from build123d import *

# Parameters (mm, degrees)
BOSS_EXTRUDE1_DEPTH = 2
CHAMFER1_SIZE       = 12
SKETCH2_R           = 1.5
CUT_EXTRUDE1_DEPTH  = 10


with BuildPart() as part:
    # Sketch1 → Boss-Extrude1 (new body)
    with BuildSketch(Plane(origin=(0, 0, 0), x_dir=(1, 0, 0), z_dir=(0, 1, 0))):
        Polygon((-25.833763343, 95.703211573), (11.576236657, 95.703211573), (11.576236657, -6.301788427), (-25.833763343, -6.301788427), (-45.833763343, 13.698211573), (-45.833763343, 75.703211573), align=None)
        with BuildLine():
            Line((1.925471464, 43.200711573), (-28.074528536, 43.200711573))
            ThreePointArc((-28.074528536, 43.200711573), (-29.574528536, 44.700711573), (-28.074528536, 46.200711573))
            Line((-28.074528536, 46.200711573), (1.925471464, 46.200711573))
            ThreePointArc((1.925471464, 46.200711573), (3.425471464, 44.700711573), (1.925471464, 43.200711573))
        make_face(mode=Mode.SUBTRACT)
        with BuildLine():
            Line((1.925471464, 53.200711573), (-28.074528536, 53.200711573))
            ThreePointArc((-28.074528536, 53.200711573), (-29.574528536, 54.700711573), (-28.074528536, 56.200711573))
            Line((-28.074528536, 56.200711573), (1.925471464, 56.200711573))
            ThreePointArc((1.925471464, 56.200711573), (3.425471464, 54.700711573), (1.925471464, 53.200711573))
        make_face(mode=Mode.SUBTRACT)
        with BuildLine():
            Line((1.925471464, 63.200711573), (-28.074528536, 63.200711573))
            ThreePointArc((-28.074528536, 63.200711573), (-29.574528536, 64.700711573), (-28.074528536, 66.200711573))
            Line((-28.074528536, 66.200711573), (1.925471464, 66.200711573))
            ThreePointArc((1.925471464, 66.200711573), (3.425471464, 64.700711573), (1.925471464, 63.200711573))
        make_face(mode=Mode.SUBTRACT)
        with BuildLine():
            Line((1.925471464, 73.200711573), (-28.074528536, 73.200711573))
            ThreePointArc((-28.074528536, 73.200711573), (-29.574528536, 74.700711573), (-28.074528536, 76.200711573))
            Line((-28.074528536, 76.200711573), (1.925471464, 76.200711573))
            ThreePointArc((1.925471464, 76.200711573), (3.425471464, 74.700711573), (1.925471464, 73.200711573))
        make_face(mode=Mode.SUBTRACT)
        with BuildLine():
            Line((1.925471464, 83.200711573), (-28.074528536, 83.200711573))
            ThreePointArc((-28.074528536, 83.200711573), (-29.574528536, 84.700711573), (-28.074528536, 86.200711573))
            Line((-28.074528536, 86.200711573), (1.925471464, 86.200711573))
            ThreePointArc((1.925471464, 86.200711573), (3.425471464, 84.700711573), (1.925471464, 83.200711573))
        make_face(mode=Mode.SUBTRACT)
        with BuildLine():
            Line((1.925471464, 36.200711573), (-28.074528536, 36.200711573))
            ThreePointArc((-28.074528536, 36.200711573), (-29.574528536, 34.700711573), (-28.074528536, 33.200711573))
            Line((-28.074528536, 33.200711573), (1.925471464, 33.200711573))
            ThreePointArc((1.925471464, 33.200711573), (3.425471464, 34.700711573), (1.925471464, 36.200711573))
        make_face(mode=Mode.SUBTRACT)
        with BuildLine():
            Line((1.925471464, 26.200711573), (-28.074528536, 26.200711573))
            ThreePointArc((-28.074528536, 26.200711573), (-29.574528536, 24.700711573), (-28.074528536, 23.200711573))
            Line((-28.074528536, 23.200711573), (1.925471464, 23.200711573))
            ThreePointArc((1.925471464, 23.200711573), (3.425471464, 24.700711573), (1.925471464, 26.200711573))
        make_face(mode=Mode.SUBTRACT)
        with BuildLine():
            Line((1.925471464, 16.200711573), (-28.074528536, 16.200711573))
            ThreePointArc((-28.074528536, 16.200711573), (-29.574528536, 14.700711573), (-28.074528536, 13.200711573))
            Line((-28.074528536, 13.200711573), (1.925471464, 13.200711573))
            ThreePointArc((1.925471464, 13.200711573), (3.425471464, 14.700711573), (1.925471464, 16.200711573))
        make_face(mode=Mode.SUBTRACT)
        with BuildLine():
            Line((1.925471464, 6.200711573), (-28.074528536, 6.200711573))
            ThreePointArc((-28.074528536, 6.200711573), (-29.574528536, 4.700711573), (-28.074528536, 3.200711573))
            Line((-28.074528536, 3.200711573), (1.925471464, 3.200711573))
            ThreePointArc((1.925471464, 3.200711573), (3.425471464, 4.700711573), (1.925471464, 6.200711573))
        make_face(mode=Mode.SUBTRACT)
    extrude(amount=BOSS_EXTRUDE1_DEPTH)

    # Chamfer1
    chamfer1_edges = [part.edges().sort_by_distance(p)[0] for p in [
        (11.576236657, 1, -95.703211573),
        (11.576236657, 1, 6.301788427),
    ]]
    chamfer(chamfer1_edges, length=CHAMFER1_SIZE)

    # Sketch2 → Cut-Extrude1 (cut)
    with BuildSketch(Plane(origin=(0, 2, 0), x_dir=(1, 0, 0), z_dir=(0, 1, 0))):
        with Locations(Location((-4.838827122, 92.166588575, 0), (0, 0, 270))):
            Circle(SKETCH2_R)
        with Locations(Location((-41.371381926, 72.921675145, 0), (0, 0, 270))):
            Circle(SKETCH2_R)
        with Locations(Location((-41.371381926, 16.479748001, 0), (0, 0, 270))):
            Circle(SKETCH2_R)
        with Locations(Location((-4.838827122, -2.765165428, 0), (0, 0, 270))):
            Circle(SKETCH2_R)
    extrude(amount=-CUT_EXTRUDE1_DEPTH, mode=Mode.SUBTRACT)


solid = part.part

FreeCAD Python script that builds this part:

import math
import FreeCAD as App
import Part
import Sketcher

V = App.Vector


def edges_at(feature, points):
    """Names of the edges that pass closest to the given points."""
    edges = feature.Shape.Edges
    near = lambda p: min(range(len(edges)), key=lambda i: edges[i].distToShape(Part.Vertex(*p))[0])
    return sorted({f"Edge{near(p) + 1}" for p in points})

doc = App.newDocument("Part")
body = doc.addObject("PartDesign::Body", "Body")

# Sketch on XZ plane
sketch1 = doc.addObject("Sketcher::SketchObject", "Sketch")
body.addObject(sketch1)
sketch1.AttachmentSupport = (doc.XZ_Plane, [""])
sketch1.MapMode = "FlatFace"
sketch1.addGeometry([
    Part.LineSegment(V(11.6, -95.7, 0), V(-25.8, -95.7, 0)),  # 0
    Part.LineSegment(V(-25.8, -95.7, 0), V(-45.8, -75.7, 0)),  # 1
    Part.LineSegment(V(-45.8, -75.7, 0), V(-45.8, -13.7, 0)),  # 2
    Part.LineSegment(V(-45.8, -13.7, 0), V(-25.8, 6.3, 0)),  # 3
    Part.LineSegment(V(-25.8, 6.3, 0), V(11.6, 6.3, 0)),  # 4
    Part.LineSegment(V(11.6, 6.3, 0), V(11.6, -95.7, 0)),  # 5
    Part.ArcOfCircle(Part.Circle(V(1.9, -4.7, 0), V(0, 0, 1), 1.5), math.radians(-90), math.radians(90)),  # 6
    Part.LineSegment(V(1.9, -3.2, 0), V(-28.1, -3.2, 0)),  # 7
    Part.ArcOfCircle(Part.Circle(V(-28.1, -4.7, 0), V(0, 0, 1), 1.5), math.radians(90), math.radians(270)),  # 8
    Part.LineSegment(V(-28.1, -6.2, 0), V(1.9, -6.2, 0)),  # 9
    Part.ArcOfCircle(Part.Circle(V(1.9, -14.7, 0), V(0, 0, 1), 1.5), math.radians(-90), math.radians(90)),  # 10
    Part.LineSegment(V(1.9, -13.2, 0), V(-28.1, -13.2, 0)),  # 11
    Part.ArcOfCircle(Part.Circle(V(-28.1, -14.7, 0), V(0, 0, 1), 1.5), math.radians(90), math.radians(270)),  # 12
    Part.LineSegment(V(-28.1, -16.2, 0), V(1.9, -16.2, 0)),  # 13
    Part.ArcOfCircle(Part.Circle(V(1.9, -24.7, 0), V(0, 0, 1), 1.5), math.radians(-90), math.radians(90)),  # 14
    Part.LineSegment(V(1.9, -23.2, 0), V(-28.1, -23.2, 0)),  # 15
    Part.ArcOfCircle(Part.Circle(V(-28.1, -24.7, 0), V(0, 0, 1), 1.5), math.radians(90), math.radians(270)),  # 16
    Part.LineSegment(V(-28.1, -26.2, 0), V(1.9, -26.2, 0)),  # 17
    Part.ArcOfCircle(Part.Circle(V(1.9, -34.7, 0), V(0, 0, 1), 1.5), math.radians(-90), math.radians(90)),  # 18
    Part.LineSegment(V(1.9, -33.2, 0), V(-28.1, -33.2, 0)),  # 19
    Part.ArcOfCircle(Part.Circle(V(-28.1, -34.7, 0), V(0, 0, 1), 1.5), math.radians(90), math.radians(270)),  # 20
    Part.LineSegment(V(-28.1, -36.2, 0), V(1.9, -36.2, 0)),  # 21
    Part.LineSegment(V(1.9, -63.2, 0), V(-28.1, -63.2, 0)),  # 22
    Part.ArcOfCircle(Part.Circle(V(-28.1, -64.7, 0), V(0, 0, 1), 1.5), math.radians(90), math.radians(270)),  # 23
    Part.LineSegment(V(-28.1, -66.2, 0), V(1.9, -66.2, 0)),  # 24
    Part.ArcOfCircle(Part.Circle(V(1.9, -64.7, 0), V(0, 0, 1), 1.5), math.radians(-90), math.radians(90)),  # 25
    Part.LineSegment(V(1.9, -43.2, 0), V(-28.1, -43.2, 0)),  # 26
    Part.ArcOfCircle(Part.Circle(V(-28.1, -44.7, 0), V(0, 0, 1), 1.5), math.radians(90), math.radians(270)),  # 27
    Part.LineSegment(V(-28.1, -46.2, 0), V(1.9, -46.2, 0)),  # 28
    Part.ArcOfCircle(Part.Circle(V(1.9, -44.7, 0), V(0, 0, 1), 1.5), math.radians(-90), math.radians(90)),  # 29
    Part.LineSegment(V(1.9, -53.2, 0), V(-28.1, -53.2, 0)),  # 30
    Part.ArcOfCircle(Part.Circle(V(-28.1, -54.7, 0), V(0, 0, 1), 1.5), math.radians(90), math.radians(270)),  # 31
    Part.LineSegment(V(-28.1, -56.2, 0), V(1.9, -56.2, 0)),  # 32
    Part.ArcOfCircle(Part.Circle(V(1.9, -54.7, 0), V(0, 0, 1), 1.5), math.radians(-90), math.radians(90)),  # 33
    Part.LineSegment(V(1.9, -73.2, 0), V(-28.1, -73.2, 0)),  # 34
    Part.ArcOfCircle(Part.Circle(V(-28.1, -74.7, 0), V(0, 0, 1), 1.5), math.radians(90), math.radians(270)),  # 35
    Part.LineSegment(V(-28.1, -76.2, 0), V(1.9, -76.2, 0)),  # 36
    Part.ArcOfCircle(Part.Circle(V(1.9, -74.7, 0), V(0, 0, 1), 1.5), math.radians(-90), math.radians(90)),  # 37
    Part.LineSegment(V(1.9, -83.2, 0), V(-28.1, -83.2, 0)),  # 38
    Part.ArcOfCircle(Part.Circle(V(-28.1, -84.7, 0), V(0, 0, 1), 1.5), math.radians(90), math.radians(270)),  # 39
    Part.LineSegment(V(-28.1, -86.2, 0), V(1.9, -86.2, 0)),  # 40
    Part.ArcOfCircle(Part.Circle(V(1.9, -84.7, 0), V(0, 0, 1), 1.5), math.radians(-90), math.radians(90)),  # 41
], False)
sketch1.addConstraint([
    Sketcher.Constraint("Coincident", 0, 2, 1, 1),
    Sketcher.Constraint("Coincident", 1, 2, 2, 1),
    Sketcher.Constraint("Coincident", 2, 2, 3, 1),
    Sketcher.Constraint("Coincident", 3, 2, 4, 1),
    Sketcher.Constraint("Coincident", 4, 2, 5, 1),
    Sketcher.Constraint("Coincident", 5, 2, 0, 1),
    Sketcher.Constraint("Tangent", 6, 2, 7, 1),
    Sketcher.Constraint("Tangent", 7, 2, 8, 1),
    Sketcher.Constraint("Tangent", 8, 2, 9, 1),
    Sketcher.Constraint("Tangent", 9, 2, 6, 1),
    Sketcher.Constraint("Tangent", 10, 2, 11, 1),
    Sketcher.Constraint("Tangent", 11, 2, 12, 1),
    Sketcher.Constraint("Tangent", 12, 2, 13, 1),
    Sketcher.Constraint("Tangent", 13, 2, 10, 1),
    Sketcher.Constraint("Tangent", 14, 2, 15, 1),
    Sketcher.Constraint("Tangent", 15, 2, 16, 1),
    Sketcher.Constraint("Tangent", 16, 2, 17, 1),
    Sketcher.Constraint("Tangent", 17, 2, 14, 1),
    Sketcher.Constraint("Tangent", 18, 2, 19, 1),
    Sketcher.Constraint("Tangent", 19, 2, 20, 1),
    Sketcher.Constraint("Tangent", 20, 2, 21, 1),
    Sketcher.Constraint("Tangent", 21, 2, 18, 1),
    Sketcher.Constraint("Tangent", 22, 2, 23, 1),
    Sketcher.Constraint("Tangent", 23, 2, 24, 1),
    Sketcher.Constraint("Tangent", 24, 2, 25, 1),
    Sketcher.Constraint("Tangent", 25, 2, 22, 1),
    Sketcher.Constraint("Tangent", 26, 2, 27, 1),
    Sketcher.Constraint("Tangent", 27, 2, 28, 1),
    Sketcher.Constraint("Tangent", 28, 2, 29, 1),
    Sketcher.Constraint("Tangent", 29, 2, 26, 1),
    Sketcher.Constraint("Tangent", 30, 2, 31, 1),
    Sketcher.Constraint("Tangent", 31, 2, 32, 1),
    Sketcher.Constraint("Tangent", 32, 2, 33, 1),
    Sketcher.Constraint("Tangent", 33, 2, 30, 1),
    Sketcher.Constraint("Tangent", 34, 2, 35, 1),
    Sketcher.Constraint("Tangent", 35, 2, 36, 1),
    Sketcher.Constraint("Tangent", 36, 2, 37, 1),
    Sketcher.Constraint("Tangent", 37, 2, 34, 1),
    Sketcher.Constraint("Tangent", 38, 2, 39, 1),
    Sketcher.Constraint("Tangent", 39, 2, 40, 1),
    Sketcher.Constraint("Tangent", 40, 2, 41, 1),
    Sketcher.Constraint("Tangent", 41, 2, 38, 1),
    Sketcher.Constraint("Horizontal", 0),
    Sketcher.Constraint("Vertical", 2),
    Sketcher.Constraint("Horizontal", 4),
    Sketcher.Constraint("Vertical", 5),
    Sketcher.Constraint("Horizontal", 7),
    Sketcher.Constraint("Horizontal", 9),
    Sketcher.Constraint("Horizontal", 11),
    Sketcher.Constraint("Horizontal", 13),
    Sketcher.Constraint("Horizontal", 15),
    Sketcher.Constraint("Horizontal", 17),
    Sketcher.Constraint("Horizontal", 19),
    Sketcher.Constraint("Horizontal", 21),
    Sketcher.Constraint("Horizontal", 22),
    Sketcher.Constraint("Horizontal", 24),
    Sketcher.Constraint("Horizontal", 26),
    Sketcher.Constraint("Horizontal", 28),
    Sketcher.Constraint("Horizontal", 30),
    Sketcher.Constraint("Horizontal", 32),
    Sketcher.Constraint("Horizontal", 34),
    Sketcher.Constraint("Horizontal", 36),
    Sketcher.Constraint("Horizontal", 38),
    Sketcher.Constraint("Horizontal", 40),
    Sketcher.Constraint("Equal", 8, 10),
    Sketcher.Constraint("Equal", 12, 14),
    Sketcher.Constraint("Equal", 16, 18),
    Sketcher.Constraint("Equal", 20, 23),
    Sketcher.Constraint("Equal", 25, 27),
    Sketcher.Constraint("Equal", 29, 31),
    Sketcher.Constraint("Equal", 33, 35),
    Sketcher.Constraint("Equal", 37, 39),
    Sketcher.Constraint("Perpendicular", 1, 3),
    Sketcher.Constraint("Vertical", 6, 3, 10, 3),
    Sketcher.Constraint("Vertical", 8, 3, 12, 3),
    Sketcher.Constraint("Vertical", 10, 3, 14, 3),
    Sketcher.Constraint("Vertical", 12, 3, 16, 3),
    Sketcher.Constraint("Vertical", 14, 3, 18, 3),
    Sketcher.Constraint("Vertical", 16, 3, 20, 3),
    Sketcher.Constraint("Vertical", 20, 3, 23, 3),
    Sketcher.Constraint("Vertical", 18, 3, 25, 3),
    Sketcher.Constraint("Vertical", 23, 3, 27, 3),
    Sketcher.Constraint("Vertical", 25, 3, 29, 3),
    Sketcher.Constraint("Vertical", 27, 3, 31, 3),
    Sketcher.Constraint("Vertical", 29, 3, 33, 3),
    Sketcher.Constraint("Vertical", 31, 3, 35, 3),
    Sketcher.Constraint("Vertical", 33, 3, 37, 3),
    Sketcher.Constraint("Vertical", 35, 3, 39, 3),
    Sketcher.Constraint("Vertical", 37, 3, 41, 3),
    Sketcher.Constraint("Vertical", 0, 2, 3, 2),
    Sketcher.Constraint("Equal", 1, 3),
    Sketcher.Constraint("Radius", 6, 1.5),
    Sketcher.Constraint("DistanceX", 7, 2, 7, 1, 30.0),
    Sketcher.Constraint("DistanceY", 10, 3, 6, 3, 10.0),
    Sketcher.Constraint("DistanceY", 14, 3, 10, 3, 10.0),
    Sketcher.Constraint("DistanceY", 18, 3, 14, 3, 10.0),
    Sketcher.Constraint("DistanceY", 23, 3, 20, 3, 30.0),
    Sketcher.Constraint("DistanceY", 27, 3, 20, 3, 10.0),
    Sketcher.Constraint("DistanceY", 31, 3, 27, 3, 10.0),
    Sketcher.Constraint("DistanceY", 35, 3, 23, 3, 10.0),
    Sketcher.Constraint("DistanceY", 39, 3, 35, 3, 10.0),
    Sketcher.Constraint("DistanceX", 1, 2, 0, 2, 20.0),
    Sketcher.Constraint("DistanceX", 0, 2, 0, 1, 37.41),
    Sketcher.Constraint("DistanceY", 2, 1, 2, 2, 62.005),
    Sketcher.Constraint("DistanceY", 0, 2, 39, 3, 11.0025),
    Sketcher.Constraint("DistanceX", -1, 1, 6, 3, 1.925471),
    Sketcher.Constraint("DistanceY", 6, 3, -1, 1, 4.700712),
    Sketcher.Constraint("DistanceX", 0, 2, -1, 1, 25.833763),
])
pad1 = doc.addObject("PartDesign::Pad", "Pad")
body.addObject(pad1)
pad1.Profile = sketch1
pad1.Length = 2
pad1.Reversed = True
doc.recompute()

chamfer = doc.addObject("PartDesign::Chamfer", "Chamfer")
body.addObject(chamfer)
chamfer.Base = (pad1, edges_at(pad1, [(11.576, 1, -95.703), (11.576, 1, 6.302)]))
chamfer.Size = 12

# Sketch on XZ plane
sketch2 = doc.addObject("Sketcher::SketchObject", "Sketch001")
body.addObject(sketch2)
sketch2.AttachmentSupport = (doc.XZ_Plane, [""])
sketch2.MapMode = "FlatFace"
sketch2.AttachmentOffset = App.Placement(V(0, 0, -2), App.Rotation())
sketch2.addGeometry([
    Part.Circle(V(-4.8, -92.2, 0), V(0, 0, 1), 1.5),
    Part.Circle(V(-41.4, -72.9, 0), V(0, 0, 1), 1.5),
    Part.Circle(V(-41.4, -16.5, 0), V(0, 0, 1), 1.5),
    Part.Circle(V(-4.8, 2.8, 0), V(0, 0, 1), 1.5),
], False)
sketch2.addConstraint([
    Sketcher.Constraint("Equal", 0, 1),
    Sketcher.Constraint("Equal", 1, 2),
    Sketcher.Constraint("Equal", 2, 3),
    Sketcher.Constraint("Vertical", 1, 3, 2, 3),
    Sketcher.Constraint("Vertical", 0, 3, 3, 3),
    Sketcher.Constraint("Diameter", 0, 3.0),
    Sketcher.Constraint("DistanceY", 0, 3, -1, 1, 92.166589),
    Sketcher.Constraint("DistanceX", 1, 3, -1, 1, 41.371382),
    Sketcher.Constraint("DistanceY", 2, 3, -1, 1, 16.479748),
    Sketcher.Constraint("DistanceY", 1, 3, 3, 3, 75.686841),
    Sketcher.Constraint("DistanceX", 0, 3, -1, 1, 4.838827),
    Sketcher.Constraint("DistanceY", 1, 3, -1, 1, 72.921675),
])
pocket1 = doc.addObject("PartDesign::Pocket", "Pocket")
body.addObject(pocket1)
pocket1.Profile = sketch2
pocket1.Length = 10
pocket1.Reversed = True

doc.recompute()
